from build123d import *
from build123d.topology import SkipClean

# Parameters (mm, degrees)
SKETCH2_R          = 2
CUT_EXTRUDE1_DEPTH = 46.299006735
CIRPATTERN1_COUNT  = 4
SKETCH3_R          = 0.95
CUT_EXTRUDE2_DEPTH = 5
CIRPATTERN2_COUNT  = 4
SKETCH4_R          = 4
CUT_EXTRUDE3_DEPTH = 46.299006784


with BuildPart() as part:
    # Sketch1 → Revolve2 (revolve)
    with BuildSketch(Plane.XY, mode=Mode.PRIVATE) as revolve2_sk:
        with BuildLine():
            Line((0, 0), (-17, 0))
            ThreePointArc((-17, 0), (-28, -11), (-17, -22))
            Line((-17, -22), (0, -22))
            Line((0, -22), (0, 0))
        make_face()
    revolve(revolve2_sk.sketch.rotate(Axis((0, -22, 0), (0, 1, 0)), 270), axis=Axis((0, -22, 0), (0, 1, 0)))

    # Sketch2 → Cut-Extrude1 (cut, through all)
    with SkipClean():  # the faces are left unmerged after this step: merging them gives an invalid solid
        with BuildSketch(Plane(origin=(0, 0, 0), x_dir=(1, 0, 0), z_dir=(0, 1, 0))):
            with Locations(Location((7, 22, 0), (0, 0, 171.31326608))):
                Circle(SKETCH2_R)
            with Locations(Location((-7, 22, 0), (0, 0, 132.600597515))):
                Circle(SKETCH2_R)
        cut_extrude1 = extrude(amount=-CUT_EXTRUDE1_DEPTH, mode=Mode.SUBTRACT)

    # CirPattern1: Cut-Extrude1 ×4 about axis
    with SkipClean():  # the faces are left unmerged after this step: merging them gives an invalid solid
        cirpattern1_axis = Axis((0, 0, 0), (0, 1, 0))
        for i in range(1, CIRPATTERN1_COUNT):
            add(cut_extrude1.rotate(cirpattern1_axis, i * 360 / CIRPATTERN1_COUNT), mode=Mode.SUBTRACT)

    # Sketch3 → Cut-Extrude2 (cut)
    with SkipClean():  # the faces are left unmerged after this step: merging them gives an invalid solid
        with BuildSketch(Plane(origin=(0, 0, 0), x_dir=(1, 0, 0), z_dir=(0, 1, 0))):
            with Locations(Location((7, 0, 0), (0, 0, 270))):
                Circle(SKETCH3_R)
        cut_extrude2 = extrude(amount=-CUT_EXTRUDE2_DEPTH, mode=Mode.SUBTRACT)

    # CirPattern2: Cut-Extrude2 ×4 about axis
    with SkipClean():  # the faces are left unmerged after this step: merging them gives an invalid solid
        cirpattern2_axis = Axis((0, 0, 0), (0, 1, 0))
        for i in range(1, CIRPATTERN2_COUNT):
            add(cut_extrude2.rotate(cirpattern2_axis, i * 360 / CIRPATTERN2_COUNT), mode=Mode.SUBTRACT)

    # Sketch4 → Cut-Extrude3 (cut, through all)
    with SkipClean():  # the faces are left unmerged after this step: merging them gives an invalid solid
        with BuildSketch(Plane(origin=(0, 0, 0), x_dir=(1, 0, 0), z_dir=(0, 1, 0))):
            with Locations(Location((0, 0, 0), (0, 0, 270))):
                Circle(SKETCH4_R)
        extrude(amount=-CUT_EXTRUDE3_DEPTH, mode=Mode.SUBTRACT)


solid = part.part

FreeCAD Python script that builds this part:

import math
import FreeCAD as App
import Part
import Sketcher
from FreeCAD import Vector
Q = App.Units.Quantity

doc = App.newDocument("Part")
body = doc.addObject("PartDesign::Body", "Body")

# Sketch on XY plane
sketch1 = body.newObject("Sketcher::SketchObject", "Sketch")
sketch1.AttachmentSupport = (doc.getObject("XY_Plane"), [""])
sketch1.MapMode = "FlatFace"
sketch1.addGeometry([
    Part.LineSegment(Vector(0, 0, 0), Vector(-17, 0, 0)),
    Part.ArcOfCircle(Part.Circle(Vector(-17, -11, 0), Vector(0, 0, 1), 11), math.radians(90), math.radians(270)),
    Part.LineSegment(Vector(-17, -22, 0), Vector(0, -22, 0)),
    Part.LineSegment(Vector(0, -22, 0), Vector(0, 0, 0)),
], False)
sketch1.addConstraint([
    Sketcher.Constraint("Tangent", 0, 2, 1, 1),
    Sketcher.Constraint("Tangent", 1, 2, 2, 1),
    Sketcher.Constraint("Coincident", 2, 2, 3, 1),
    Sketcher.Constraint("Coincident", 3, 2, 0, 1),
    Sketcher.Constraint("Horizontal", 0),
    Sketcher.Constraint("Horizontal", 2),
    Sketcher.Constraint("Vertical", 3),
    Sketcher.Constraint("Coincident", 3, 2, -1, 1),
    Sketcher.Constraint("Radius", 1, Q("11 mm")),
    Sketcher.Constraint("DistanceX", 0, 2, 0, 1, Q("17 mm")),
])
revolution = body.newObject("PartDesign::Revolution", "Revolution")
revolution.Profile = sketch1
revolution.ReferenceAxis = (sketch1, ["V_Axis"])
revolution.Angle = 360

# Sketch on XZ plane
sketch2 = body.newObject("Sketcher::SketchObject", "Sketch001")
sketch2.AttachmentSupport = (doc.getObject("XZ_Plane"), [""])
sketch2.MapMode = "FlatFace"
sketch2.addGeometry([
    Part.Circle(Vector(7, -22, 0), Vector(0, 0, 1), 2),
    Part.Circle(Vector(-7, -22, 0), Vector(0, 0, 1), 2),
], False)
sketch2.addConstraint([
    Sketcher.Constraint("Equal", 0, 1),
    Sketcher.Constraint("Symmetric", 0, 3, 1, 3, -2),
    Sketcher.Constraint("Diameter", 0, Q("4 mm")),
    Sketcher.Constraint("DistanceX", -1, 1, 0, 3, Q("7 mm")),
    Sketcher.Constraint("DistanceY", 0, 3, -1, 1, Q("22 mm")),
])
pocket1 = body.newObject("PartDesign::Pocket", "Pocket")
pocket1.Profile = sketch2
pocket1.Type = "ThroughAll"
pocket1.Reversed = True
doc.recompute()

polarpattern = body.newObject("PartDesign::PolarPattern", "PolarPattern")
polarpattern.Originals = [pocket1]
polarpattern.Axis = (doc.getObject("Y_Axis"), [""])
polarpattern.Angle = 360
polarpattern.Occurrences = 4
body.Tip = polarpattern

# Sketch on XZ plane
sketch3 = body.newObject("Sketcher::SketchObject", "Sketch002")
sketch3.AttachmentSupport = (doc.getObject("XZ_Plane"), [""])
sketch3.MapMode = "FlatFace"
sketch3.addGeometry(Part.Circle(Vector(7, 0, 0), Vector(0, 0, 1), 0.95), False)
sketch3.addConstraint([
    Sketcher.Constraint("PointOnObject", 0, 3, -1),
    Sketcher.Constraint("Diameter", 0, Q("1.9 mm")),
    Sketcher.Constraint("DistanceX", -1, 1, 0, 3, Q("7 mm")),
])
pocket2 = body.newObject("PartDesign::Pocket", "Pocket001")
pocket2.Profile = sketch3
pocket2.Length = 5
pocket2.Reversed = True
doc.recompute()

polarpattern2 = body.newObject("PartDesign::PolarPattern", "PolarPattern001")
polarpattern2.Originals = [pocket2]
polarpattern2.Axis = (doc.getObject("Y_Axis"), [""])
polarpattern2.Angle = 360
polarpattern2.Occurrences = 4
body.Tip = polarpattern2

# Sketch on XZ plane
sketch4 = body.newObject("Sketcher::SketchObject", "Sketch003")
sketch4.AttachmentSupport = (doc.getObject("XZ_Plane"), [""])
sketch4.MapMode = "FlatFace"
sketch4.addGeometry(Part.Circle(Vector(0, 0, 0), Vector(0, 0, 1), 4), False)
sketch4.addConstraint([
    Sketcher.Constraint("Coincident", 0, 3, -1, 1),
    Sketcher.Constraint("Diameter", 0, Q("8 mm")),
])
pocket3 = body.newObject("PartDesign::Pocket", "Pocket002")
pocket3.Profile = sketch4
pocket3.Type = "ThroughAll"
pocket3.Reversed = True

doc.recompute()
